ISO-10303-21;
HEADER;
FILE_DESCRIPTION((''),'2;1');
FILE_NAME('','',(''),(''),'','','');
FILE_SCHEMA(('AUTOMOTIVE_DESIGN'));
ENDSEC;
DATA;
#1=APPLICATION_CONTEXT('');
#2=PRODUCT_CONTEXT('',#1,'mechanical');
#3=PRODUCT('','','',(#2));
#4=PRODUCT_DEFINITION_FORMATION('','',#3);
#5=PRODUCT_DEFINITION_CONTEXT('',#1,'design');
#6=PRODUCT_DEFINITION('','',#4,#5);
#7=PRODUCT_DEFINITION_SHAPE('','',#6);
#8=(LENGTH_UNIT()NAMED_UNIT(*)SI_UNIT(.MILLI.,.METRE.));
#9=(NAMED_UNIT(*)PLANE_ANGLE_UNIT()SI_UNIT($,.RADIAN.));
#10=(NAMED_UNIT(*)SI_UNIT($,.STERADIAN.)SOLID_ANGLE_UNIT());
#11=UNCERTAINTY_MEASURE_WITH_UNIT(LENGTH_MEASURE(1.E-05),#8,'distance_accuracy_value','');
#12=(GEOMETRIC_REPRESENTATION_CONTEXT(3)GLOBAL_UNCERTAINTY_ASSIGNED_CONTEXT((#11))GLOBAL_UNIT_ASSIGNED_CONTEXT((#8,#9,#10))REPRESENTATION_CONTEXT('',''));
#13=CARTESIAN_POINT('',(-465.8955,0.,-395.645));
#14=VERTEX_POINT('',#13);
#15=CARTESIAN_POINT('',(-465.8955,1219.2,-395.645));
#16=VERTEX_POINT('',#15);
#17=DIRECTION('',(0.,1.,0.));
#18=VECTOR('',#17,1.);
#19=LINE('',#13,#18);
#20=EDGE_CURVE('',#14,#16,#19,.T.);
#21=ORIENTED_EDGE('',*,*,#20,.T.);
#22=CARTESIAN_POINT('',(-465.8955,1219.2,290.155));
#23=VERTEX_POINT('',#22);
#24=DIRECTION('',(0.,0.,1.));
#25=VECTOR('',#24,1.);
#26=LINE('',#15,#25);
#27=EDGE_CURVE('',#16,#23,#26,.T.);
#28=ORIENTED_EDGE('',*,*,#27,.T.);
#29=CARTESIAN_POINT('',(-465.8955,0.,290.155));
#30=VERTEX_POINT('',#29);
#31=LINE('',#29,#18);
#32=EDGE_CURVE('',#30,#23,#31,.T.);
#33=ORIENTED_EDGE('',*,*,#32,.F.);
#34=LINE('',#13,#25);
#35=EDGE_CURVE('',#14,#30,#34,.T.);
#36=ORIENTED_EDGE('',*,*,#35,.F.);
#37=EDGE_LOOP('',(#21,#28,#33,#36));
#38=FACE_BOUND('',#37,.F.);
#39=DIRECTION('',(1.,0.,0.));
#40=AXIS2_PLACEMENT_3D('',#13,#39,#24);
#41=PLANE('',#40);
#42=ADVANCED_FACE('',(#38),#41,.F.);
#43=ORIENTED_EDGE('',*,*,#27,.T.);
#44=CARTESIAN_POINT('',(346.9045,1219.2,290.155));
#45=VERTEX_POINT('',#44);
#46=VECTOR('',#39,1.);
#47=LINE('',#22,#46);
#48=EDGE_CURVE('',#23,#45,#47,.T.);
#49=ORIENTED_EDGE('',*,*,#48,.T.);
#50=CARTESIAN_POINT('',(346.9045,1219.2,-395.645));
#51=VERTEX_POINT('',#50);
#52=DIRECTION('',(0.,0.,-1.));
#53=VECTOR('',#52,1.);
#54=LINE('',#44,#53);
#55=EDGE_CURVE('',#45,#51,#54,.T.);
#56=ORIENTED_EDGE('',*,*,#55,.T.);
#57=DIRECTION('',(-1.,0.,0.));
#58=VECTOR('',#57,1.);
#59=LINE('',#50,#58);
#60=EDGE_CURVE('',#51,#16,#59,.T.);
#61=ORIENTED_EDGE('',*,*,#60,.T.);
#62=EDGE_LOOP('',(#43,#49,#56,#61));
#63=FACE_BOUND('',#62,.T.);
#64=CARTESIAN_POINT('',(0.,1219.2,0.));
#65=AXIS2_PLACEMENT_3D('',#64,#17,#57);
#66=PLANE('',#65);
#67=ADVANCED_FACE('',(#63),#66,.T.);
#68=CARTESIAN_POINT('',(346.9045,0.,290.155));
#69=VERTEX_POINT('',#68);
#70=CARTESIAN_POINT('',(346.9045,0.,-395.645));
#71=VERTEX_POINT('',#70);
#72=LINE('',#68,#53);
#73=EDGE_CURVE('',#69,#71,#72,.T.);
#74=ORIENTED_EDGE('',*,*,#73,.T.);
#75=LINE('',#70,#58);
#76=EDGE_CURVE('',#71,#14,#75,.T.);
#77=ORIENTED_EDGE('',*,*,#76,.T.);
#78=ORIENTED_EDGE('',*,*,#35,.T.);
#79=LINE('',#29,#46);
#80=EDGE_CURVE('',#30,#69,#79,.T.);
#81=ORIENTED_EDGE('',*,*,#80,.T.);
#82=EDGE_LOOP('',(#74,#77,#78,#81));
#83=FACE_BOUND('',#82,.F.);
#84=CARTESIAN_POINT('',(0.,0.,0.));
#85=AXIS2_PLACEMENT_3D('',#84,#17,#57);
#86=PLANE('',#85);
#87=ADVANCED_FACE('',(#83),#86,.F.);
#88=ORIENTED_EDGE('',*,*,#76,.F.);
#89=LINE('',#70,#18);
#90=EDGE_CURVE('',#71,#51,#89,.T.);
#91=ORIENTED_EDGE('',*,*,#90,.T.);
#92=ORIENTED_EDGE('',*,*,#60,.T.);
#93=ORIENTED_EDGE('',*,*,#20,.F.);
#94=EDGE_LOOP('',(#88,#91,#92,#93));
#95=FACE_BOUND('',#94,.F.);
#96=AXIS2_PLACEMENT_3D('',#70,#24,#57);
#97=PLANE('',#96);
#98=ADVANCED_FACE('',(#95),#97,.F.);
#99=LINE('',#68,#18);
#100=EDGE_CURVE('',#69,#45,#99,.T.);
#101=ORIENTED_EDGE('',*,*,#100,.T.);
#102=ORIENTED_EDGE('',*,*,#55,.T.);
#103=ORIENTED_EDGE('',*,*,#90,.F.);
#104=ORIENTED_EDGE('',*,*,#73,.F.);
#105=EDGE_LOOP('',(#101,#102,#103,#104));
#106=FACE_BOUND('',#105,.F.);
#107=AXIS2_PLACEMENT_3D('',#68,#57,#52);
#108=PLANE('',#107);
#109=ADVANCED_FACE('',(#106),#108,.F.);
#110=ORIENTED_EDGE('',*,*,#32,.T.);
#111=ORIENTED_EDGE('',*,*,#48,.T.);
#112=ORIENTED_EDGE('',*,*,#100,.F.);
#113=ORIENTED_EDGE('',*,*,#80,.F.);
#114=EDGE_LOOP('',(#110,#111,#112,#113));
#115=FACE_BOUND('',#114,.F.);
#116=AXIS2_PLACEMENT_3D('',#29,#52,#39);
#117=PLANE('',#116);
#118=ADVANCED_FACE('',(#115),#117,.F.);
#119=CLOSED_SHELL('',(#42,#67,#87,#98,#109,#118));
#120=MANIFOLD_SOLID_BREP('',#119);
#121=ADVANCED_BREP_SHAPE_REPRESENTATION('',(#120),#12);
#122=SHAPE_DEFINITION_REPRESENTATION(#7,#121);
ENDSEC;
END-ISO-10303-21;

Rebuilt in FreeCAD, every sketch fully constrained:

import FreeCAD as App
import Part
import Sketcher
Q = App.Units.Quantity

doc = App.newDocument("Part")
body = doc.addObject("PartDesign::Body", "Body")

sketch1 = body.newObject("Sketcher::SketchObject", "Sketch")
sketch1.AttachmentSupport = (doc.getObject("XZ_Plane"), [""])
sketch1.MapMode = "FlatFace"
sketch1.addGeometry([
    Part.LineSegment(App.Vector(-466, -396, 0), App.Vector(-466, 290, 0)),
    Part.LineSegment(App.Vector(-466, 290, 0), App.Vector(347, 290, 0)),
    Part.LineSegment(App.Vector(347, 290, 0), App.Vector(347, -396, 0)),
    Part.LineSegment(App.Vector(347, -396, 0), App.Vector(-466, -396, 0)),
], False)
sketch1.addConstraint([
    Sketcher.Constraint("Coincident", 0, 2, 1, 1),
    Sketcher.Constraint("Coincident", 1, 2, 2, 1),
    Sketcher.Constraint("Coincident", 2, 2, 3, 1),
    Sketcher.Constraint("Coincident", 3, 2, 0, 1),
    Sketcher.Constraint("Vertical", 0),
    Sketcher.Constraint("Horizontal", 1),
    Sketcher.Constraint("Vertical", 2),
    Sketcher.Constraint("Horizontal", 3),
    Sketcher.Constraint("DistanceX", 1, 1, 1, 2, Q("32 in")),
    Sketcher.Constraint("DistanceY", 0, 1, 0, 2, Q("27 in")),
    Sketcher.Constraint("DistanceX", 0, 2, -1, 1, 465.8955),
    Sketcher.Constraint("DistanceY", -1, 1, 0, 2, 290.155),
])
pad1 = body.newObject("PartDesign::Pad", "Pad")
pad1.Profile = sketch1
pad1.Length = Q("48 in")
pad1.Reversed = True

doc.recompute()
